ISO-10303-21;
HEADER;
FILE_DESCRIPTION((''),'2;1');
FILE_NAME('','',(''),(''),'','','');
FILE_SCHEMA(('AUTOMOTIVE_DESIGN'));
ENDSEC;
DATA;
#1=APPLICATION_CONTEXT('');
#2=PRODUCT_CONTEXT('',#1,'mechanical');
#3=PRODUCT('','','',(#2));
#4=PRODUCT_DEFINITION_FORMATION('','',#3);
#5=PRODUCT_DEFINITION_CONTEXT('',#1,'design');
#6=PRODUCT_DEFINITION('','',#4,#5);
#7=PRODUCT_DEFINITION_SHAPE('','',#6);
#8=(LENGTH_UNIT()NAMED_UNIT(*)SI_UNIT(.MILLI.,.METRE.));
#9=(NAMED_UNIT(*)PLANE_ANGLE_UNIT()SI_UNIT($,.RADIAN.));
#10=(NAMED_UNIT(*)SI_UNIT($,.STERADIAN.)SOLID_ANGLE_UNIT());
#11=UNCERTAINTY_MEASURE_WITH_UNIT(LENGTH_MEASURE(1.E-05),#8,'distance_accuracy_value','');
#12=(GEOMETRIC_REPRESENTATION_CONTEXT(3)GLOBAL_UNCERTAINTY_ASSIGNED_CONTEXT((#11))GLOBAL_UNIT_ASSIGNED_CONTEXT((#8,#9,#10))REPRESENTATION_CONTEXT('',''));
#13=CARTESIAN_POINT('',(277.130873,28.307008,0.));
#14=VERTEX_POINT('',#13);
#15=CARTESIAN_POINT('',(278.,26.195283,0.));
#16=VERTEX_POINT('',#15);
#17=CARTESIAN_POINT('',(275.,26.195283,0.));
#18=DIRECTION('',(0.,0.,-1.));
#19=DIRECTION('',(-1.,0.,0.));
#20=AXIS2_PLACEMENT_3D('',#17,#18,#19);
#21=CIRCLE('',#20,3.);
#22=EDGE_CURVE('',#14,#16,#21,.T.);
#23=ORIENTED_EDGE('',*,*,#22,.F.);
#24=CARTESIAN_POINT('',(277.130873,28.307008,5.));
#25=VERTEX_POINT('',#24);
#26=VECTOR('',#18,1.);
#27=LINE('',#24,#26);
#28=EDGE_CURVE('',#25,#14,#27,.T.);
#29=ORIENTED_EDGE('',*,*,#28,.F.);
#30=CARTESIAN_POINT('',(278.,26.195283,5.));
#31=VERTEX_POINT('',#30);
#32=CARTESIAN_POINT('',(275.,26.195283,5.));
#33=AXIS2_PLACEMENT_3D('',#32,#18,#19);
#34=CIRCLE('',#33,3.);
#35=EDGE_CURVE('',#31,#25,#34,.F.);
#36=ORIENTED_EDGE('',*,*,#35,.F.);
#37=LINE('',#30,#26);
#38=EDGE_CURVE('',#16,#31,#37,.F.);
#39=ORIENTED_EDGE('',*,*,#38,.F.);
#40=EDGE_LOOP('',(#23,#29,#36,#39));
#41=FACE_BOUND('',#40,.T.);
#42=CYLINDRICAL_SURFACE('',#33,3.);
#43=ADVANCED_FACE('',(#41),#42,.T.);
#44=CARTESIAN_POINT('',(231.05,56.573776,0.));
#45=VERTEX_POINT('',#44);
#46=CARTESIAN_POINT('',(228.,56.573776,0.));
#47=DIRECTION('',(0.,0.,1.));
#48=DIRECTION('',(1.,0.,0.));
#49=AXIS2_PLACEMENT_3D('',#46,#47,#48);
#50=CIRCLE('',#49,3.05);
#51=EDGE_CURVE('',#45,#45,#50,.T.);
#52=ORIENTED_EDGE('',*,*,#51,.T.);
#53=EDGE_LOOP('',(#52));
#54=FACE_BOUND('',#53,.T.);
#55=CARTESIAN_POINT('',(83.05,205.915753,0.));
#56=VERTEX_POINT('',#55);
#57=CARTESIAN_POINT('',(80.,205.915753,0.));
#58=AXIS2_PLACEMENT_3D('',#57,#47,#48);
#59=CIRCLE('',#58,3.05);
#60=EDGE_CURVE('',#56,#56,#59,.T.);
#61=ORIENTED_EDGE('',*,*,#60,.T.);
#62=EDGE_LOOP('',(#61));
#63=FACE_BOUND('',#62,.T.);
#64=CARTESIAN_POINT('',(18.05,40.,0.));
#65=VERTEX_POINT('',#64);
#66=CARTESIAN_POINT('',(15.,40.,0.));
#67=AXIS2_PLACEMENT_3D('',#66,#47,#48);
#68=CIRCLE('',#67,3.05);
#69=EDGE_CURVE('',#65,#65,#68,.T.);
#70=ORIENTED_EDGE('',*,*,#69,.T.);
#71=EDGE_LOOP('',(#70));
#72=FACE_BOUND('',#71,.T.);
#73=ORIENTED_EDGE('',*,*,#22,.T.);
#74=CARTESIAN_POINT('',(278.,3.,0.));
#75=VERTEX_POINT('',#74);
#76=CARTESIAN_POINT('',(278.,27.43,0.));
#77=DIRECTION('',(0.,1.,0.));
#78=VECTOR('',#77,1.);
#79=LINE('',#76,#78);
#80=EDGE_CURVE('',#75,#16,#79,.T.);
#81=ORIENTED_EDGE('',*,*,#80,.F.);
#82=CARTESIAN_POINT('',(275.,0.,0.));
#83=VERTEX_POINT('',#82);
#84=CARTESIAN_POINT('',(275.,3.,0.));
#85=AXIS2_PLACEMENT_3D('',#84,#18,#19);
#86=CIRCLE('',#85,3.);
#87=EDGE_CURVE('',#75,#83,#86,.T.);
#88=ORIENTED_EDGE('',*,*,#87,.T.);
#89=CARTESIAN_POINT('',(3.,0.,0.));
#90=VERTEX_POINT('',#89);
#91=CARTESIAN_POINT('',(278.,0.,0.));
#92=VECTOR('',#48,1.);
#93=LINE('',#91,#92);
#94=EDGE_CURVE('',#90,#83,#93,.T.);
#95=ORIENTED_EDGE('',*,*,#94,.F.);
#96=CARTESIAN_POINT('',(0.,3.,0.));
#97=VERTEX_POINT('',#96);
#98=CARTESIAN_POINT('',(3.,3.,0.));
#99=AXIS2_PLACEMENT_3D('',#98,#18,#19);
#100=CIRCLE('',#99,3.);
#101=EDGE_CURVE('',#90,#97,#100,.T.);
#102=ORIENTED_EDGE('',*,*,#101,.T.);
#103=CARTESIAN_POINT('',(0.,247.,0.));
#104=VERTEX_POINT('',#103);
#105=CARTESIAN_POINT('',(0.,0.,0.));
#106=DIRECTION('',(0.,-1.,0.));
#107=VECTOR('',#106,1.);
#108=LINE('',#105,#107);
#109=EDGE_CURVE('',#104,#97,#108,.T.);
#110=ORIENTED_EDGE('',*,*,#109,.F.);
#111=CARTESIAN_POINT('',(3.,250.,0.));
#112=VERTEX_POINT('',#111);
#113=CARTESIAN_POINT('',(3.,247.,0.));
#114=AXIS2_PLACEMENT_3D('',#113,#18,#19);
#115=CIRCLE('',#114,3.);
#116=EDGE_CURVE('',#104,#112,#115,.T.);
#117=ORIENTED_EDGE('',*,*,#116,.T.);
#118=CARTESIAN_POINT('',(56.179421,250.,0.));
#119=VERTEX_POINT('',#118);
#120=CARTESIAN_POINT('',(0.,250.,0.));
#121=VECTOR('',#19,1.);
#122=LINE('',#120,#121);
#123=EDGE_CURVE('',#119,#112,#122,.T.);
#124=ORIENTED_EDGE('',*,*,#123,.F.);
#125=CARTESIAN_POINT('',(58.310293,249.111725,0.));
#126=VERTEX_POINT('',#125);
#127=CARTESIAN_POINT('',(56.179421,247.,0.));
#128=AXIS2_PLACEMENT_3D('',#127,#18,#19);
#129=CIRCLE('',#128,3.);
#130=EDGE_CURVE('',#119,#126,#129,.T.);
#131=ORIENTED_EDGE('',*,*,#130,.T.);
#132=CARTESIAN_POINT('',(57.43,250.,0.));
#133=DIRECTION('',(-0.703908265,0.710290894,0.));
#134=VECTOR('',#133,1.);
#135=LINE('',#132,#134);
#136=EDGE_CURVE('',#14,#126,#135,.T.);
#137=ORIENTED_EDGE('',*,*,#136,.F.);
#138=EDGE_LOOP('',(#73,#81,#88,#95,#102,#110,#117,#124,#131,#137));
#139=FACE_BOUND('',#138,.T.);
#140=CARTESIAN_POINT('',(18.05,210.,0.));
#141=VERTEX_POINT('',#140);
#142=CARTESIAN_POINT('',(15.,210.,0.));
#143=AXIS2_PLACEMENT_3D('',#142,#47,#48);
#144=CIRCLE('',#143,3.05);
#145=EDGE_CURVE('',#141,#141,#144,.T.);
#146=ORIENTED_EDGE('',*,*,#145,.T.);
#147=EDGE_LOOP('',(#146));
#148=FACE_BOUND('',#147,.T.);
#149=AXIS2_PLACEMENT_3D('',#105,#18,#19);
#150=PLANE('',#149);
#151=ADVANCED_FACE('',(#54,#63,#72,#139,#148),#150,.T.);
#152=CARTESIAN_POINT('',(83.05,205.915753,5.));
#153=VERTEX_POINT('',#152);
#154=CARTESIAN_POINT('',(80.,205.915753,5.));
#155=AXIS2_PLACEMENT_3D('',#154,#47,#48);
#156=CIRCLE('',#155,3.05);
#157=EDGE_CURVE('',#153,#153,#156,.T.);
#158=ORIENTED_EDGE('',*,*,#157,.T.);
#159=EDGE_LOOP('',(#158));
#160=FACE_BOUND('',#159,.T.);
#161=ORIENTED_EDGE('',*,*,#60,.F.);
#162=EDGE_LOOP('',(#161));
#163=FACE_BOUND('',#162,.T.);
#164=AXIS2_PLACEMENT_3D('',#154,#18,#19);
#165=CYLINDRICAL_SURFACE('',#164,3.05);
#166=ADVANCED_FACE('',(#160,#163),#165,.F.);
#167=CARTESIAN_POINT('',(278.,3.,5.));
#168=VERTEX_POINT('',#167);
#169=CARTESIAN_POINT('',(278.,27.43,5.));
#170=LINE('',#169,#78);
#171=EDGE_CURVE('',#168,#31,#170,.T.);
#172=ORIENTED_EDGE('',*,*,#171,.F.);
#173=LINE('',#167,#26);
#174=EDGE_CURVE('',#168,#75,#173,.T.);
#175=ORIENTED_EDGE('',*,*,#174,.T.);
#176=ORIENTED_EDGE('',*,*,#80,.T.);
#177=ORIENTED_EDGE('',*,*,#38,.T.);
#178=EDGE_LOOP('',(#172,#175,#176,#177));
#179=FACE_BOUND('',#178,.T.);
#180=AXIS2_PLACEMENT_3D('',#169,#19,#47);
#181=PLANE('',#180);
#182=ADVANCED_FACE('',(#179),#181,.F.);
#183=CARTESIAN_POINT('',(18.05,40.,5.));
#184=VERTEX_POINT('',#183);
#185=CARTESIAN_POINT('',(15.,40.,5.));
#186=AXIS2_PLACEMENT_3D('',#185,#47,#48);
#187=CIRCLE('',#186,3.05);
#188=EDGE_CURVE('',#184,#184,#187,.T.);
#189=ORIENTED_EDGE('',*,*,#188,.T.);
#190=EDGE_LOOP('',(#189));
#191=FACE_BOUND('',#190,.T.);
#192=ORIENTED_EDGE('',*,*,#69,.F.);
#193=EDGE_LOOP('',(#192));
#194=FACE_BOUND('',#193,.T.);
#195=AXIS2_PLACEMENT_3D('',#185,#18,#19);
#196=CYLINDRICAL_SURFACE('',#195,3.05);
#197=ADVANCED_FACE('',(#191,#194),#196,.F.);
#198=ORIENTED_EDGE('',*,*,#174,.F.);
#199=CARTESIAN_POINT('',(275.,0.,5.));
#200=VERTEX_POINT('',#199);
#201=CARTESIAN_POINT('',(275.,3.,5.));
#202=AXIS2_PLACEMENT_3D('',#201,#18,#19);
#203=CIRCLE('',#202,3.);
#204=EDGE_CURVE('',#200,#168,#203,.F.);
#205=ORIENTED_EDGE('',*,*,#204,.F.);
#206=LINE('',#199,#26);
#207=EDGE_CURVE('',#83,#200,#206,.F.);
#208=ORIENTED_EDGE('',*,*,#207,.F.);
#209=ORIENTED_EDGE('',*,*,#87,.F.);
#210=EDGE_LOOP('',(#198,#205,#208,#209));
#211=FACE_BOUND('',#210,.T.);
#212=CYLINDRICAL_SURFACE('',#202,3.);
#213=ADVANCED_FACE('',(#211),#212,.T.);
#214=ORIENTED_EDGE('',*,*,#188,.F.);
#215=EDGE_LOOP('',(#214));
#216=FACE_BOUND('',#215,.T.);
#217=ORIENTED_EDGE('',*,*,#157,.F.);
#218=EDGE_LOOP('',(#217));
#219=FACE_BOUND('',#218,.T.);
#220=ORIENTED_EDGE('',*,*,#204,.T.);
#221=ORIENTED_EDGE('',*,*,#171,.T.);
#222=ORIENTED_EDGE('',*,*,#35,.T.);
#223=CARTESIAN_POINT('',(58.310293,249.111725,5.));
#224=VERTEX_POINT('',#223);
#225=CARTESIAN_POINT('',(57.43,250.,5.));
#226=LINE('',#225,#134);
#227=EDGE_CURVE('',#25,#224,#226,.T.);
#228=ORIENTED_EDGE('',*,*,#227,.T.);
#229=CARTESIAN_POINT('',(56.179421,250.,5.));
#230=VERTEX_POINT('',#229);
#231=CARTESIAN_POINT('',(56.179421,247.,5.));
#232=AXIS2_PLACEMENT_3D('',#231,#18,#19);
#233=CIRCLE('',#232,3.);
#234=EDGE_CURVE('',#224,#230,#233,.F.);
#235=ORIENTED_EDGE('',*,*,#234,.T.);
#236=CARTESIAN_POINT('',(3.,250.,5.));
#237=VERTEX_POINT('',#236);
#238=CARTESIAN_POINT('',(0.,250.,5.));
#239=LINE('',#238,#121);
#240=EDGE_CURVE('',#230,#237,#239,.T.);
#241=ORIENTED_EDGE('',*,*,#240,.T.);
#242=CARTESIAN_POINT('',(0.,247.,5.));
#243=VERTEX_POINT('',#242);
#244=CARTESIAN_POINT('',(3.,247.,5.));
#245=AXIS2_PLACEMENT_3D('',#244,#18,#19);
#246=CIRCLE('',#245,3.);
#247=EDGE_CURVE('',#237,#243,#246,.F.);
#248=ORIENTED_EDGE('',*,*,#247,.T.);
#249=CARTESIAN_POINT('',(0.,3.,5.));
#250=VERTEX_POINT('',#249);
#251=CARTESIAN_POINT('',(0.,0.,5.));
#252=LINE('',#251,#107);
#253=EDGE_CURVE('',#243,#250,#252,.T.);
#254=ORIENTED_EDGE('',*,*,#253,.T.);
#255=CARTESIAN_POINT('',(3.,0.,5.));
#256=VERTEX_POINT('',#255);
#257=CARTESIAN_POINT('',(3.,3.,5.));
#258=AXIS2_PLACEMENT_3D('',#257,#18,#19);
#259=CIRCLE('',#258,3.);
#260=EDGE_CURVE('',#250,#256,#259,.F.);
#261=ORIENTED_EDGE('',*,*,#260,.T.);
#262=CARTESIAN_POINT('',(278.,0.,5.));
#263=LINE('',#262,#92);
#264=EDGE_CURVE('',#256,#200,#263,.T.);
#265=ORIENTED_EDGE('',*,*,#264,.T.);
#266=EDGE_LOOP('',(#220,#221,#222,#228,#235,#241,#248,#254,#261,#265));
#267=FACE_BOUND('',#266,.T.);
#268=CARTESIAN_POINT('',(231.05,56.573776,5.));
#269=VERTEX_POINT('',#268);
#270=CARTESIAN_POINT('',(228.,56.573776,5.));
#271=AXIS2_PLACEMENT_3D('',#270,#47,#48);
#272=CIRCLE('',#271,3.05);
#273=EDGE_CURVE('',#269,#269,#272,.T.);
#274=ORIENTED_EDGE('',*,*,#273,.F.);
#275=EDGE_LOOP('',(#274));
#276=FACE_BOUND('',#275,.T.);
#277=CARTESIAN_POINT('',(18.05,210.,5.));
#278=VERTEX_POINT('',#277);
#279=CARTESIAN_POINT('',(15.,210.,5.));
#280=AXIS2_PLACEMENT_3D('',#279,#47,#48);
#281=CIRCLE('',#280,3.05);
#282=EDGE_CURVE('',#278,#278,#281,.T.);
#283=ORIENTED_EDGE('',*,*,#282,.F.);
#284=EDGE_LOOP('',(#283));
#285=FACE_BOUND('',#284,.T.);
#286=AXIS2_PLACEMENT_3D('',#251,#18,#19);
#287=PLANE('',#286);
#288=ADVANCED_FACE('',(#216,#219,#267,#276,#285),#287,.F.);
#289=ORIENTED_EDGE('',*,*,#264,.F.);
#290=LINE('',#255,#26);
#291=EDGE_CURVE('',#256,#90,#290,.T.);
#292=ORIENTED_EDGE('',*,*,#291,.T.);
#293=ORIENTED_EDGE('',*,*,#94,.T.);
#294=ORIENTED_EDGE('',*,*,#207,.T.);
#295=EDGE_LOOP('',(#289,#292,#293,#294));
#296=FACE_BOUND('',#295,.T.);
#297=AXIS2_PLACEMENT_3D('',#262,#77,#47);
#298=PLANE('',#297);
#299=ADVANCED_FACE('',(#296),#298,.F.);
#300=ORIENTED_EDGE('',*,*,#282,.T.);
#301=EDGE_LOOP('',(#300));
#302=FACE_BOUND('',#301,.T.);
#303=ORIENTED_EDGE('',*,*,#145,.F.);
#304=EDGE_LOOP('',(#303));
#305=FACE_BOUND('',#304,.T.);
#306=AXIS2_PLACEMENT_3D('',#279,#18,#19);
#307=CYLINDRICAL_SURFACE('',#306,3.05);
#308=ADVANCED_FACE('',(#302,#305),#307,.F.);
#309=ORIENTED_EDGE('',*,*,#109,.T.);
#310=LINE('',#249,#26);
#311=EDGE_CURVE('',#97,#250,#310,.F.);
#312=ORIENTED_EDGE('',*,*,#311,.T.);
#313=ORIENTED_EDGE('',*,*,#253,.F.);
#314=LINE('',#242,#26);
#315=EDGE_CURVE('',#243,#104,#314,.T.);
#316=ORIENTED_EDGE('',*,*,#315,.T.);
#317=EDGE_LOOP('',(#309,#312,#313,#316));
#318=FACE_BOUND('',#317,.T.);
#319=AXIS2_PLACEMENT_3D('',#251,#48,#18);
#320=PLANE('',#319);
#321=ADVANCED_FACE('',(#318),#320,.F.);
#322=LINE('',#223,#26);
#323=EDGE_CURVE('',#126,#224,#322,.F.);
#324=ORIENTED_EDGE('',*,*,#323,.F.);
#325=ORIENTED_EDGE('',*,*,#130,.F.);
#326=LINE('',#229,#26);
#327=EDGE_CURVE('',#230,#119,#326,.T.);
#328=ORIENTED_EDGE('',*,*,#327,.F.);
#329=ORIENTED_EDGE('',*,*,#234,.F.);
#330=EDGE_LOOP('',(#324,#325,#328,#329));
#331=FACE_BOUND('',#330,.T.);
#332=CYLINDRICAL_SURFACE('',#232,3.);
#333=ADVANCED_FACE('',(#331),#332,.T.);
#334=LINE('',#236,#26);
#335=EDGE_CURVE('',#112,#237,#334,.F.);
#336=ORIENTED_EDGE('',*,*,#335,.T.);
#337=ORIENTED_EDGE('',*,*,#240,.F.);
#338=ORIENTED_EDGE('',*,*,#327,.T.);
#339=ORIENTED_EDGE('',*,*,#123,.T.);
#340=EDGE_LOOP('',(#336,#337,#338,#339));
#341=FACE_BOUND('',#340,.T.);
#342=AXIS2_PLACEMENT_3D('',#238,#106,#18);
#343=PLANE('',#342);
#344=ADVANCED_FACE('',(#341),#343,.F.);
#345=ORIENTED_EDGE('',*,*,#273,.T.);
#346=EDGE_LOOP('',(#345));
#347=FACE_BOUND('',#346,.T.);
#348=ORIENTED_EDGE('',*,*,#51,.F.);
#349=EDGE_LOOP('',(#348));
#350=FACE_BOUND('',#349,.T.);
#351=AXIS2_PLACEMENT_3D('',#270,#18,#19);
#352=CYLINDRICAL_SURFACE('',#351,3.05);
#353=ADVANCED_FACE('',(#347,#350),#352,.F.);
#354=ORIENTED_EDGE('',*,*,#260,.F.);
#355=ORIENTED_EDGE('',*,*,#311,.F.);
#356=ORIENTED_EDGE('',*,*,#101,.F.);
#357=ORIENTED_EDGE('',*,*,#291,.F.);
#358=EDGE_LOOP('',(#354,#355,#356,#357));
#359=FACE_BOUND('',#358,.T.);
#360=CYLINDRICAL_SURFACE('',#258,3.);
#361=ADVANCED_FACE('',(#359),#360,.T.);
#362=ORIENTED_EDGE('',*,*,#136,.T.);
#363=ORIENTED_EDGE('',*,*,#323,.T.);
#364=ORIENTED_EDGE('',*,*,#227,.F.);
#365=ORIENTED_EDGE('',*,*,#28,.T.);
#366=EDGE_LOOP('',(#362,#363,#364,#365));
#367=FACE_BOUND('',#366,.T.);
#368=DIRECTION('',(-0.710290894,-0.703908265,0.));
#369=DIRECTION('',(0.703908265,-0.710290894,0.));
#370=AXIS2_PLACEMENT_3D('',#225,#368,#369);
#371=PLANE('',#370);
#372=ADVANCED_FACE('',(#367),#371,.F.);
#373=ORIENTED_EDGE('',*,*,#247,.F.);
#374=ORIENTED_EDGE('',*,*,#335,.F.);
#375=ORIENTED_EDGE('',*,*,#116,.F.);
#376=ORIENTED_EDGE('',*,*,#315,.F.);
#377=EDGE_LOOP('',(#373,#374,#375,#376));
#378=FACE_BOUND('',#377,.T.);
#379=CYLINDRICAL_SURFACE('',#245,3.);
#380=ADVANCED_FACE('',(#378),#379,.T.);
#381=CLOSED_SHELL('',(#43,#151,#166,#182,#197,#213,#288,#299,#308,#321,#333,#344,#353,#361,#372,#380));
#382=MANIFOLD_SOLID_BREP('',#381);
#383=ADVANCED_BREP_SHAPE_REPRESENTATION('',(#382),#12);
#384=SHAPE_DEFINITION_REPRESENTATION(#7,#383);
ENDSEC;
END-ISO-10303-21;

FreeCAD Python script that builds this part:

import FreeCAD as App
import Part
import Sketcher

V = App.Vector
Q = App.Units.Quantity


def edges_at(feature, points):
    """Names of the edges that pass closest to the given points."""
    edges = feature.Shape.Edges
    near = lambda p: min(range(len(edges)), key=lambda i: edges[i].distToShape(Part.Vertex(*p))[0])
    return sorted({f"Edge{near(p) + 1}" for p in points})

doc = App.newDocument("Part")
params = doc.addObject("Spreadsheet::Sheet", "Params")
for row, (alias, value) in enumerate([
    ("sketch1_diameter", "6.1 mm"),
    ("sketch1_width", "278 mm"),
    ("sketch1_height", "250 mm"),
    ("sketch1_width2", "57.43 mm"),
    ("sketch1_height2", "27.43 mm"),
    ("pad1_length", "5 mm"),
    ("fillet_radius", "3 mm"),
], start=1):
    params.set(f"A{row}", alias)
    params.set(f"B{row}", "=" + value)
    params.setAlias(f"B{row}", alias)

body = doc.addObject("PartDesign::Body", "Body")

sketch1 = body.newObject("Sketcher::SketchObject", "Sketch")
sketch1.AttachmentSupport = (doc.getObject("XY_Plane"), [""])
sketch1.MapMode = "FlatFace"
sketch1.addGeometry([
    Part.LineSegment(V(0, 250, 0), V(0, 0, 0)),
    Part.LineSegment(V(0, 0, 0), V(278, 0, 0)),
    Part.LineSegment(V(278, 0, 0), V(278, 27.43, 0)),
    Part.LineSegment(V(278, 27.43, 0), V(57.43, 250, 0)),
    Part.LineSegment(V(57.43, 250, 0), V(0, 250, 0)),
    Part.Circle(V(228, 56.573776, 0), V(0, 0, 1), 3.05),
    Part.Circle(V(15, 40, 0), V(0, 0, 1), 3.05),
    Part.Circle(V(80, 205.915753, 0), V(0, 0, 1), 3.05),
    Part.Circle(V(15, 210, 0), V(0, 0, 1), 3.05),
], False)
sketch1.addConstraint([
    Sketcher.Constraint("Coincident", 0, 2, 1, 1),
    Sketcher.Constraint("Coincident", 1, 2, 2, 1),
    Sketcher.Constraint("Coincident", 2, 2, 3, 1),
    Sketcher.Constraint("Coincident", 3, 2, 4, 1),
    Sketcher.Constraint("Coincident", 4, 2, 0, 1),
    Sketcher.Constraint("Vertical", 0),
    Sketcher.Constraint("Horizontal", 1),
    Sketcher.Constraint("Vertical", 2),
    Sketcher.Constraint("Horizontal", 4),
    Sketcher.Constraint("Coincident", 0, 2, -1, 1),
    Sketcher.Constraint("Equal", 5, 6),
    Sketcher.Constraint("Equal", 6, 7),
    Sketcher.Constraint("Equal", 7, 8),
    Sketcher.Constraint("Vertical", 6, 3, 8, 3),
    Sketcher.Constraint("Diameter", 5, Q("6.1 mm")),
    Sketcher.Constraint("DistanceX", 1, 1, 1, 2, Q("278 mm")),
    Sketcher.Constraint("DistanceY", 0, 2, 0, 1, Q("250 mm")),
    Sketcher.Constraint("DistanceX", -1, 1, 5, 3, Q("228 mm")),
    Sketcher.Constraint("DistanceX", -1, 1, 6, 3, Q("15 mm")),
    Sketcher.Constraint("DistanceY", -1, 1, 6, 3, Q("40 mm")),
    Sketcher.Constraint("DistanceX", -1, 1, 7, 3, Q("80 mm")),
    Sketcher.Constraint("DistanceY", -1, 1, 8, 3, Q("210 mm")),
    Sketcher.Constraint("DistanceX", 4, 2, 4, 1, Q("57.43 mm")),
    Sketcher.Constraint("DistanceY", 2, 1, 2, 2, Q("27.43 mm")),
    Sketcher.Constraint("DistanceY", -1, 1, 5, 3, Q("56.573776 mm")),
    Sketcher.Constraint("DistanceY", -1, 1, 7, 3, Q("205.915753 mm")),
])
sketch1.setExpression("Constraints[14]", "Params.sketch1_diameter")
sketch1.setExpression("Constraints[15]", "Params.sketch1_width")
sketch1.setExpression("Constraints[16]", "Params.sketch1_height")
sketch1.setExpression("Constraints[22]", "Params.sketch1_width2")
sketch1.setExpression("Constraints[23]", "Params.sketch1_height2")
pad1 = body.newObject("PartDesign::Pad", "Pad")
pad1.Profile = sketch1
pad1.setExpression("Length", "Params.pad1_length")
doc.recompute()

fillet = body.newObject("PartDesign::Fillet", "Fillet")
fillet.Base = (pad1, edges_at(pad1, [
    (0, 0, 2.5),
    (0, 250, 2.5),
    (57.43, 250, 2.5),
    (278, 27.43, 2.5),
    (278, 0, 2.5),
]))
fillet.setExpression("Radius", "Params.fillet_radius")

doc.recompute()
